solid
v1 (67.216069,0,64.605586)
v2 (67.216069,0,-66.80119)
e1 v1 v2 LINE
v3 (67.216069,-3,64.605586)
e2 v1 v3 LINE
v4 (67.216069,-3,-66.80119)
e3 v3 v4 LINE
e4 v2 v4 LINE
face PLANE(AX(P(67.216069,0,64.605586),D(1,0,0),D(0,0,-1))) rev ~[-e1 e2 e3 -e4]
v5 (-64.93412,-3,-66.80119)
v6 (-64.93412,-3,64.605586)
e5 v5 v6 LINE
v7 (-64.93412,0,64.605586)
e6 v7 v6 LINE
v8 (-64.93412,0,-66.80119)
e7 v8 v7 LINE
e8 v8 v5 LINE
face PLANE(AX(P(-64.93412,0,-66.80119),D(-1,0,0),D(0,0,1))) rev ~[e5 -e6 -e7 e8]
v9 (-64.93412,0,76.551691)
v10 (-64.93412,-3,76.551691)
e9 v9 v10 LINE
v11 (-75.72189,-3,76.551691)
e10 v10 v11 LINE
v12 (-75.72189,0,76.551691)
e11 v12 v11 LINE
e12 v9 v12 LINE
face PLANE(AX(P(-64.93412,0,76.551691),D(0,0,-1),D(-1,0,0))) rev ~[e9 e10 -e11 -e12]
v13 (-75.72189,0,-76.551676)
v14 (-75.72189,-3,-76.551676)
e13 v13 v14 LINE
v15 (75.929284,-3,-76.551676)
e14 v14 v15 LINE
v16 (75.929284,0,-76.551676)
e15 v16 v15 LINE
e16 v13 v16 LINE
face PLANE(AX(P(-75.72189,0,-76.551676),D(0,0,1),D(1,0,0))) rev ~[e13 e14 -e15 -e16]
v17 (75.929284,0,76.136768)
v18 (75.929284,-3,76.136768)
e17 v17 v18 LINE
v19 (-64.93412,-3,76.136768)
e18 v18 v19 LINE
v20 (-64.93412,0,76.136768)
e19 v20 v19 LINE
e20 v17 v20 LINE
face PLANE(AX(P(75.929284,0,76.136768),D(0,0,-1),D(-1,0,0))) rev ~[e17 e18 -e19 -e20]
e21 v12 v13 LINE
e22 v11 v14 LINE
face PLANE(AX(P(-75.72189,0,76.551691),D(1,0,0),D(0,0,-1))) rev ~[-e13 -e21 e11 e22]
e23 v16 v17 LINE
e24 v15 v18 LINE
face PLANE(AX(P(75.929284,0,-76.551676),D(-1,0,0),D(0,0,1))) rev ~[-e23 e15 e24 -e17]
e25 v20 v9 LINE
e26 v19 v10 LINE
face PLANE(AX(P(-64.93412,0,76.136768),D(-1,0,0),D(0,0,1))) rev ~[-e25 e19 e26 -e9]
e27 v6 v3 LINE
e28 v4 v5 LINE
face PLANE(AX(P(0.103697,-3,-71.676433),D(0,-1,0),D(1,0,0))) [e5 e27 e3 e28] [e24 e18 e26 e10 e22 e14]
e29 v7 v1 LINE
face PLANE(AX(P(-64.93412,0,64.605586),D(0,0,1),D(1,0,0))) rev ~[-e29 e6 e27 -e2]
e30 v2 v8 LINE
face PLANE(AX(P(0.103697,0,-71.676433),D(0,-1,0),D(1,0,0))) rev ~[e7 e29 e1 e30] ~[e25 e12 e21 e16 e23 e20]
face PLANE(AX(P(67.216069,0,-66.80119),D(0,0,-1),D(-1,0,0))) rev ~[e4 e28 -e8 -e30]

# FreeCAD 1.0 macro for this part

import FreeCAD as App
import Part
import Sketcher
Q = App.Units.Quantity


def add_polygon(sketch, points):
    """Adds a closed chain of lines whose ends are joined by coincident constraints."""
    first, n = sketch.GeometryCount, len(points)
    for a, b in zip(points, points[1:] + points[:1]):
        sketch.addGeometry(Part.LineSegment(App.Vector(*a, 0), App.Vector(*b, 0)), False)
    for i in range(n):
        sketch.addConstraint(Sketcher.Constraint("Coincident", first + i, 2, first + (i + 1) % n, 1))

doc = App.newDocument("Part")
body = doc.addObject("PartDesign::Body", "Body")

sketch1 = body.newObject("Sketcher::SketchObject", "Sketch")
sketch1.AttachmentSupport = (doc.getObject("XZ_Plane"), [""])
sketch1.MapMode = "FlatFace"
add_polygon(sketch1, [(-75.72, -76.55), (75.93, -76.55), (75.93, 76.14), (-64.93, 76.14), (-64.93, 76.55), (-75.72, 76.55)])
add_polygon(sketch1, [(67.22, -66.8), (-64.93, -66.8), (-64.93, 64.61), (67.22, 64.61)])
sketch1.addConstraint(Sketcher.Constraint("Horizontal", 0))
sketch1.addConstraint(Sketcher.Constraint("Vertical", 1))
sketch1.addConstraint(Sketcher.Constraint("Horizontal", 2))
sketch1.addConstraint(Sketcher.Constraint("Vertical", 3))
sketch1.addConstraint(Sketcher.Constraint("Horizontal", 4))
sketch1.addConstraint(Sketcher.Constraint("Vertical", 5))
sketch1.addConstraint(Sketcher.Constraint("Horizontal", 6))
sketch1.addConstraint(Sketcher.Constraint("Vertical", 7))
sketch1.addConstraint(Sketcher.Constraint("Horizontal", 8))
sketch1.addConstraint(Sketcher.Constraint("Vertical", 9))
sketch1.addConstraint(Sketcher.Constraint("Vertical", 3, 2, 6, 2))
sketch1.addConstraint(Sketcher.Constraint("DistanceX", 4, 2, 4, 1, Q("10.78777 mm")))
sketch1.addConstraint(Sketcher.Constraint("DistanceX", 6, 2, 6, 1, Q("132.150188 mm")))
sketch1.addConstraint(Sketcher.Constraint("DistanceX", 0, 1, 0, 2, Q("151.651174 mm")))
sketch1.addConstraint(Sketcher.Constraint("DistanceY", 1, 1, 1, 2, Q("152.688444 mm")))
sketch1.addConstraint(Sketcher.Constraint("DistanceY", 3, 1, 3, 2, Q("0.414923 mm")))
sketch1.addConstraint(Sketcher.Constraint("DistanceY", 7, 1, 7, 2, Q("131.406777 mm")))
sketch1.addConstraint(Sketcher.Constraint("DistanceX", 2, 2, -1, 1, Q("64.93412 mm")))
sketch1.addConstraint(Sketcher.Constraint("DistanceY", -1, 1, 3, 2, Q("76.551691 mm")))
sketch1.addConstraint(Sketcher.Constraint("DistanceY", 6, 2, -1, 1, Q("66.80119 mm")))
pad1 = body.newObject("PartDesign::Pad", "Pad")
pad1.Profile = sketch1
pad1.Length = 3

doc.recompute()
